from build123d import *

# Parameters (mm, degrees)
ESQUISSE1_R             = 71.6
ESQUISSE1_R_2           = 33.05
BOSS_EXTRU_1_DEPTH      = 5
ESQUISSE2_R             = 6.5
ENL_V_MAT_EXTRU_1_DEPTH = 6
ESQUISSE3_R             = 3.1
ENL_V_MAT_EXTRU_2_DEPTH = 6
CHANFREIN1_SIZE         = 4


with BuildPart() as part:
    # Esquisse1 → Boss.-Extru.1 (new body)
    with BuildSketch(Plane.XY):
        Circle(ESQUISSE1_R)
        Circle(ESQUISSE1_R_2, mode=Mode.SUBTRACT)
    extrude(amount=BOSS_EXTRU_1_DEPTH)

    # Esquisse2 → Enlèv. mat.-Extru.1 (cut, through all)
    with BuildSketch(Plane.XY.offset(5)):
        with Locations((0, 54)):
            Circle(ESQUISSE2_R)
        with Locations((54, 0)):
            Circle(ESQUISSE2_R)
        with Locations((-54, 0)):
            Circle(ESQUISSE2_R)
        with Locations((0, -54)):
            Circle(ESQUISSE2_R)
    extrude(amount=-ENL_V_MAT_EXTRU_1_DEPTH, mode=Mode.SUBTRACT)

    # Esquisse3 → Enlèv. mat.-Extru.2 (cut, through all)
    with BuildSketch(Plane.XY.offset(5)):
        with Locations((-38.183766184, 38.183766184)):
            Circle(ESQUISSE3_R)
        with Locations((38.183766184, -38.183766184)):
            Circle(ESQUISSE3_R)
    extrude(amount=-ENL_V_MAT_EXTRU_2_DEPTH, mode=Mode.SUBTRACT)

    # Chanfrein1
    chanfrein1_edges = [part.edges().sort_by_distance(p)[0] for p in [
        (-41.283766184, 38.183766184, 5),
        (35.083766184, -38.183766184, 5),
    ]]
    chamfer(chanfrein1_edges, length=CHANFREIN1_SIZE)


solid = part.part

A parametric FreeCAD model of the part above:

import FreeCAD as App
import Part
import Sketcher

V = App.Vector


def edges_at(feature, points):
    """Names of the edges that pass closest to the given points."""
    edges = feature.Shape.Edges
    near = lambda p: min(range(len(edges)), key=lambda i: edges[i].distToShape(Part.Vertex(*p))[0])
    return sorted({f"Edge{near(p) + 1}" for p in points})

doc = App.newDocument("Part")
params = doc.addObject("Spreadsheet::Sheet", "Params")
for row, (alias, value) in enumerate([
    ("sketch1_diameter", "143.2 mm"),
    ("sketch1_diameter2", "66.1 mm"),
    ("pad1_length", "5 mm"),
    ("sketch2_diameter", "13 mm"),
    ("sketch3_diameter", "6.2 mm"),
    ("chamfer_size", "4 mm"),
], start=1):
    params.set(f"A{row}", alias)
    params.set(f"B{row}", "=" + value)
    params.setAlias(f"B{row}", alias)

body = doc.addObject("PartDesign::Body", "Body")

# Sketch on XY plane
sketch1 = doc.addObject("Sketcher::SketchObject", "Sketch")
body.addObject(sketch1)
sketch1.AttachmentSupport = (doc.XY_Plane, [""])
sketch1.MapMode = "FlatFace"
sketch1.addGeometry(Part.Circle(V(0, 0, 0), V(0, 0, 1), 71.6), False)
sketch1.addGeometry(Part.Circle(V(0, 0, 0), V(0, 0, 1), 33.05), False)
sketch1.addConstraint(Sketcher.Constraint("Coincident", 0, 3, -1, 1))
sketch1.addConstraint(Sketcher.Constraint("Coincident", 1, 3, -1, 1))
sketch1.addConstraint(Sketcher.Constraint("Diameter", 0, 143.2))
sketch1.addConstraint(Sketcher.Constraint("Diameter", 1, 66.1))
sketch1.setExpression("Constraints[2]", "Params.sketch1_diameter")
sketch1.setExpression("Constraints[3]", "Params.sketch1_diameter2")
pad1 = doc.addObject("PartDesign::Pad", "Pad")
body.addObject(pad1)
pad1.Profile = sketch1
pad1.setExpression("Length", "Params.pad1_length")

# Sketch on XY plane
sketch2 = doc.addObject("Sketcher::SketchObject", "Sketch001")
body.addObject(sketch2)
sketch2.AttachmentSupport = (doc.XY_Plane, [""])
sketch2.MapMode = "FlatFace"
sketch2.AttachmentOffset = App.Placement(V(0, 0, 5), App.Rotation())
sketch2.addGeometry(Part.Circle(V(0, 54, 0), V(0, 0, 1), 6.5), False)
sketch2.addGeometry(Part.Circle(V(54, 0, 0), V(0, 0, 1), 6.5), False)
sketch2.addGeometry(Part.Circle(V(-54, 0, 0), V(0, 0, 1), 6.5), False)
sketch2.addGeometry(Part.Circle(V(0, -54, 0), V(0, 0, 1), 6.5), False)
sketch2.addConstraint(Sketcher.Constraint("Equal", 0, 1))
sketch2.addConstraint(Sketcher.Constraint("Equal", 1, 2))
sketch2.addConstraint(Sketcher.Constraint("Equal", 2, 3))
sketch2.addConstraint(Sketcher.Constraint("Symmetric", 1, 3, 2, 3, -1, 1))
sketch2.addConstraint(Sketcher.Constraint("Symmetric", 0, 3, 3, 3, -1, 1))
sketch2.addConstraint(Sketcher.Constraint("PointOnObject", 0, 3, -2))
sketch2.addConstraint(Sketcher.Constraint("PointOnObject", 1, 3, -1))
sketch2.addConstraint(Sketcher.Constraint("Diameter", 0, 13.0))
sketch2.addConstraint(Sketcher.Constraint("DistanceY", -1, 1, 0, 3, 54.0))
sketch2.addConstraint(Sketcher.Constraint("DistanceX", -1, 1, 1, 3, 54.0))
sketch2.setExpression("Constraints[7]", "Params.sketch2_diameter")
pocket1 = doc.addObject("PartDesign::Pocket", "Pocket")
body.addObject(pocket1)
pocket1.Profile = sketch2
pocket1.Type = "ThroughAll"

# Sketch on XY plane
sketch3 = doc.addObject("Sketcher::SketchObject", "Sketch002")
body.addObject(sketch3)
sketch3.AttachmentSupport = (doc.XY_Plane, [""])
sketch3.MapMode = "FlatFace"
sketch3.AttachmentOffset = App.Placement(V(0, 0, 5), App.Rotation())
sketch3.addGeometry(Part.Circle(V(-38.183766, 38.183766, 0), V(0, 0, 1), 3.1), False)
sketch3.addGeometry(Part.Circle(V(38.183766, -38.183766, 0), V(0, 0, 1), 3.1), False)
sketch3.addConstraint(Sketcher.Constraint("Equal", 0, 1))
sketch3.addConstraint(Sketcher.Constraint("Symmetric", 0, 3, 1, 3, -1, 1))
sketch3.addConstraint(Sketcher.Constraint("Diameter", 0, 6.2))
sketch3.addConstraint(Sketcher.Constraint("DistanceX", 0, 3, -1, 1, 38.183766))
sketch3.addConstraint(Sketcher.Constraint("DistanceY", -1, 1, 0, 3, 38.183766))
sketch3.setExpression("Constraints[2]", "Params.sketch3_diameter")
pocket2 = doc.addObject("PartDesign::Pocket", "Pocket001")
body.addObject(pocket2)
pocket2.Profile = sketch3
pocket2.Type = "ThroughAll"
doc.recompute()

chamfer = doc.addObject("PartDesign::Chamfer", "Chamfer")
body.addObject(chamfer)
chamfer.Base = (pocket2, edges_at(pocket2, [(-41.284, 38.184, 5), (35.084, -38.184, 5)]))
chamfer.setExpression("Size", "Params.chamfer_size")

doc.recompute()
